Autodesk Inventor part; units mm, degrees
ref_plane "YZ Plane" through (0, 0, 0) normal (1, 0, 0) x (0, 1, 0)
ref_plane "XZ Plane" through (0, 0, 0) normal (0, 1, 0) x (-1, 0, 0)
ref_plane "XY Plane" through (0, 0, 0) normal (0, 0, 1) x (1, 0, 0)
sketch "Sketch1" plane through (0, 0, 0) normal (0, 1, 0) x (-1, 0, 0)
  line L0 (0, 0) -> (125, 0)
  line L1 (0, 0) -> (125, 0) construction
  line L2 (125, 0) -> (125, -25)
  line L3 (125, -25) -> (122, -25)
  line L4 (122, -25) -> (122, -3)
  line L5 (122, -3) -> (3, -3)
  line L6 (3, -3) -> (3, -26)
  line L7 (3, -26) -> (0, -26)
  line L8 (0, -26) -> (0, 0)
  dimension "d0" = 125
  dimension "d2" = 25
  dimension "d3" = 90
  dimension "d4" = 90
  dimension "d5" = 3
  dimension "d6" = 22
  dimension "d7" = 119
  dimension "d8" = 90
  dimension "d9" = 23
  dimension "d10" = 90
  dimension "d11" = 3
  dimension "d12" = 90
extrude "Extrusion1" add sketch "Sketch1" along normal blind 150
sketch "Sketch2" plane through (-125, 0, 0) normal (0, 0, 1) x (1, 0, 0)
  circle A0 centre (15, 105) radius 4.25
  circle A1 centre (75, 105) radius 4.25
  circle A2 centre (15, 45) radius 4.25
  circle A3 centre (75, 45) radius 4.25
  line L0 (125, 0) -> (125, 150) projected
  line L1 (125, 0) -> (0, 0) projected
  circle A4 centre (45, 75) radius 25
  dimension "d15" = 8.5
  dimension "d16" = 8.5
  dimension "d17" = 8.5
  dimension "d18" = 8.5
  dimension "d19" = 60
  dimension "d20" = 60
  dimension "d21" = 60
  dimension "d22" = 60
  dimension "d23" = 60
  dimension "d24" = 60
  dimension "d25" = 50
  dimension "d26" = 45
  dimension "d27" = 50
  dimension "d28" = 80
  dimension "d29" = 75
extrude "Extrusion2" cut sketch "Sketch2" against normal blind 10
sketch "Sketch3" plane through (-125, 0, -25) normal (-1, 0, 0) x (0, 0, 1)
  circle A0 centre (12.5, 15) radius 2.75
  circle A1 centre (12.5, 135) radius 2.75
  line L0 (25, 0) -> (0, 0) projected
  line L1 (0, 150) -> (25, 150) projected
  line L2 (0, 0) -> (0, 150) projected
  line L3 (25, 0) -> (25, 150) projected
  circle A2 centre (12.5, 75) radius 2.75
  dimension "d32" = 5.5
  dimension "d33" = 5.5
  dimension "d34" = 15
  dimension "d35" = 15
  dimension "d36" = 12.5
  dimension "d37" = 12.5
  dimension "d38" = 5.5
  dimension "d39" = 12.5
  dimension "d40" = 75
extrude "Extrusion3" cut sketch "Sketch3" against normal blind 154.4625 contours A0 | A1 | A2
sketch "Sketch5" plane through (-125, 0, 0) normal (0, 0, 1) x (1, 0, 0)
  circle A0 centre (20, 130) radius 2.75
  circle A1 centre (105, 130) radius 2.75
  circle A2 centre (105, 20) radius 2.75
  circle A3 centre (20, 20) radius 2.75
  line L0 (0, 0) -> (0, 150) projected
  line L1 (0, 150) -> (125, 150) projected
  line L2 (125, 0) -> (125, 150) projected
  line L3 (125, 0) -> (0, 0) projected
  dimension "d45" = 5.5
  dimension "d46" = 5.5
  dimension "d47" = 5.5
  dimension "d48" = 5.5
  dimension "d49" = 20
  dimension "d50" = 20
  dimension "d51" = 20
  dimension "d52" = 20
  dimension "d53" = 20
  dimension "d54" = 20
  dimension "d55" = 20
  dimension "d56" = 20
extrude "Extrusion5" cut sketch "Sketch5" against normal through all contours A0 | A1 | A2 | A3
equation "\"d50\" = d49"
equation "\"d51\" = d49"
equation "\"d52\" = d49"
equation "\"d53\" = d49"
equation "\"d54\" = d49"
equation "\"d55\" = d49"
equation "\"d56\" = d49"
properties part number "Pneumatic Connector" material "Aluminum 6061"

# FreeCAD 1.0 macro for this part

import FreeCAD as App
import Part
import Sketcher
Q = App.Units.Quantity


def add_polygon(sketch, points):
    """Adds a closed chain of lines whose ends are joined by coincident constraints."""
    first, n = sketch.GeometryCount, len(points)
    for a, b in zip(points, points[1:] + points[:1]):
        sketch.addGeometry(Part.LineSegment(App.Vector(*a, 0), App.Vector(*b, 0)), False)
    for i in range(n):
        sketch.addConstraint(Sketcher.Constraint("Coincident", first + i, 2, first + (i + 1) % n, 1))

doc = App.newDocument("Part")
params = doc.addObject("Spreadsheet::Sheet", "Params")
for row, (alias, value) in enumerate([
    ("sketch1_width", "125 mm"),
    ("sketch1_width2", "3 mm"),
    ("sketch1_height", "23 mm"),
    ("sketch1_height2", "22 mm"),
    ("sketch1_height3", "25 mm"),
    ("pad1_length", "150 mm"),
    ("sketch2_diameter", "50 mm"),
    ("sketch2_diameter2", "8.5 mm"),
    ("pocket1_length", "10 mm"),
    ("sketch3_diameter", "5.5 mm"),
    ("pocket2_length", "154.4625 mm"),
    ("sketch4_diameter", "5.5 mm"),
], start=1):
    params.set(f"A{row}", alias)
    params.set(f"B{row}", "=" + value)
    params.setAlias(f"B{row}", alias)

body = doc.addObject("PartDesign::Body", "Body")

# Sketch on XZ plane
sketch1 = doc.addObject("Sketcher::SketchObject", "Sketch")
body.addObject(sketch1)
sketch1.AttachmentSupport = (doc.XZ_Plane, [""])
sketch1.MapMode = "FlatFace"
add_polygon(sketch1, [(-125, 0), (0, 0), (0, -26), (-3, -26), (-3, -3), (-122, -3), (-122, -25), (-125, -25)])  # lines 0-7
sketch1.addConstraint(Sketcher.Constraint("Horizontal", 0))
sketch1.addConstraint(Sketcher.Constraint("Vertical", 1))
sketch1.addConstraint(Sketcher.Constraint("Horizontal", 2))
sketch1.addConstraint(Sketcher.Constraint("Vertical", 3))
sketch1.addConstraint(Sketcher.Constraint("Horizontal", 4))
sketch1.addConstraint(Sketcher.Constraint("Vertical", 5))
sketch1.addConstraint(Sketcher.Constraint("Horizontal", 6))
sketch1.addConstraint(Sketcher.Constraint("Vertical", 7))
sketch1.addConstraint(Sketcher.Constraint("Coincident", 0, 2, -1, 1))
sketch1.addConstraint(Sketcher.Constraint("Equal", 2, 6))
sketch1.addConstraint(Sketcher.Constraint("DistanceX", 0, 1, 0, 2, Q("125 mm")))
sketch1.addConstraint(Sketcher.Constraint("DistanceX", 2, 2, 2, 1, Q("3 mm")))
sketch1.addConstraint(Sketcher.Constraint("DistanceY", 3, 1, 3, 2, Q("23 mm")))
sketch1.addConstraint(Sketcher.Constraint("DistanceY", 5, 2, 5, 1, Q("22 mm")))
sketch1.addConstraint(Sketcher.Constraint("DistanceY", 7, 1, 7, 2, Q("25 mm")))
sketch1.setExpression("Constraints[18]", "Params.sketch1_width")
sketch1.setExpression("Constraints[19]", "Params.sketch1_width2")
sketch1.setExpression("Constraints[20]", "Params.sketch1_height")
sketch1.setExpression("Constraints[21]", "Params.sketch1_height2")
sketch1.setExpression("Constraints[22]", "Params.sketch1_height3")
pad1 = doc.addObject("PartDesign::Pad", "Pad")
body.addObject(pad1)
pad1.Profile = sketch1
pad1.setExpression("Length", "Params.pad1_length")
pad1.Reversed = True

# Sketch on XY plane
sketch2 = doc.addObject("Sketcher::SketchObject", "Sketch001")
body.addObject(sketch2)
sketch2.AttachmentSupport = (doc.XY_Plane, [""])
sketch2.MapMode = "FlatFace"
sketch2.addGeometry(Part.Circle(App.Vector(-110, 105, 0), App.Vector(0, 0, 1), 4.2), False)
sketch2.addGeometry(Part.Circle(App.Vector(-50, 105, 0), App.Vector(0, 0, 1), 4.2), False)
sketch2.addGeometry(Part.Circle(App.Vector(-110, 45, 0), App.Vector(0, 0, 1), 4.2), False)
sketch2.addGeometry(Part.Circle(App.Vector(-50, 45, 0), App.Vector(0, 0, 1), 4.2), False)
sketch2.addGeometry(Part.Circle(App.Vector(-80, 75, 0), App.Vector(0, 0, 1), 25), False)
sketch2.addConstraint(Sketcher.Constraint("Equal", 0, 1))
sketch2.addConstraint(Sketcher.Constraint("Equal", 1, 2))
sketch2.addConstraint(Sketcher.Constraint("Equal", 2, 3))
sketch2.addConstraint(Sketcher.Constraint("Horizontal", 0, 3, 1, 3))
sketch2.addConstraint(Sketcher.Constraint("Horizontal", 2, 3, 3, 3))
sketch2.addConstraint(Sketcher.Constraint("Vertical", 0, 3, 2, 3))
sketch2.addConstraint(Sketcher.Constraint("Vertical", 1, 3, 3, 3))
sketch2.addConstraint(Sketcher.Constraint("Diameter", 4, Q("50 mm")))
sketch2.addConstraint(Sketcher.Constraint("Diameter", 0, Q("8.5 mm")))
sketch2.addConstraint(Sketcher.Constraint("DistanceX", 1, 3, -1, 1, Q("50 mm")))
sketch2.addConstraint(Sketcher.Constraint("DistanceY", -1, 1, 2, 3, Q("45 mm")))
sketch2.addConstraint(Sketcher.Constraint("DistanceX", 4, 3, -1, 1, Q("80 mm")))
sketch2.addConstraint(Sketcher.Constraint("DistanceY", -1, 1, 4, 3, Q("75 mm")))
sketch2.addConstraint(Sketcher.Constraint("DistanceX", 0, 3, 1, 3, Q("60 mm")))
sketch2.addConstraint(Sketcher.Constraint("DistanceY", 2, 3, 0, 3, Q("60 mm")))
sketch2.setExpression("Constraints[7]", "Params.sketch2_diameter")
sketch2.setExpression("Constraints[8]", "Params.sketch2_diameter2")
pocket1 = doc.addObject("PartDesign::Pocket", "Pocket")
body.addObject(pocket1)
pocket1.Profile = sketch2
pocket1.setExpression("Length", "Params.pocket1_length")

# Sketch on YZ plane
sketch3 = doc.addObject("Sketcher::SketchObject", "Sketch002")
body.addObject(sketch3)
sketch3.AttachmentSupport = (doc.YZ_Plane, [""])
sketch3.MapMode = "FlatFace"
sketch3.AttachmentOffset = App.Placement(App.Vector(0, 0, -125), App.Rotation())
sketch3.addGeometry(Part.Circle(App.Vector(15, -12.5, 0), App.Vector(0, 0, 1), 2.8), False)
sketch3.addGeometry(Part.Circle(App.Vector(135, -12.5, 0), App.Vector(0, 0, 1), 2.8), False)
sketch3.addGeometry(Part.Circle(App.Vector(75, -12.5, 0), App.Vector(0, 0, 1), 2.8), False)
sketch3.addConstraint(Sketcher.Constraint("Equal", 0, 1))
sketch3.addConstraint(Sketcher.Constraint("Equal", 1, 2))
sketch3.addConstraint(Sketcher.Constraint("Horizontal", 0, 3, 1, 3))
sketch3.addConstraint(Sketcher.Constraint("Horizontal", 1, 3, 2, 3))
sketch3.addConstraint(Sketcher.Constraint("Diameter", 0, Q("5.5 mm")))
sketch3.addConstraint(Sketcher.Constraint("DistanceX", -1, 1, 0, 3, Q("15 mm")))
sketch3.addConstraint(Sketcher.Constraint("DistanceX", -1, 1, 2, 3, Q("75 mm")))
sketch3.addConstraint(Sketcher.Constraint("DistanceY", 0, 3, -1, 1, Q("12.5 mm")))
sketch3.addConstraint(Sketcher.Constraint("DistanceX", -1, 1, 1, 3, Q("135 mm")))
sketch3.setExpression("Constraints[4]", "Params.sketch3_diameter")
pocket2 = doc.addObject("PartDesign::Pocket", "Pocket001")
body.addObject(pocket2)
pocket2.Profile = sketch3
pocket2.setExpression("Length", "Params.pocket2_length")
pocket2.Reversed = True

# Sketch on XY plane
sketch4 = doc.addObject("Sketcher::SketchObject", "Sketch003")
body.addObject(sketch4)
sketch4.AttachmentSupport = (doc.XY_Plane, [""])
sketch4.MapMode = "FlatFace"
sketch4.addGeometry(Part.Circle(App.Vector(-105, 130, 0), App.Vector(0, 0, 1), 2.8), False)
sketch4.addGeometry(Part.Circle(App.Vector(-20, 130, 0), App.Vector(0, 0, 1), 2.8), False)
sketch4.addGeometry(Part.Circle(App.Vector(-20, 20, 0), App.Vector(0, 0, 1), 2.8), False)
sketch4.addGeometry(Part.Circle(App.Vector(-105, 20, 0), App.Vector(0, 0, 1), 2.8), False)
sketch4.addConstraint(Sketcher.Constraint("Equal", 0, 1))
sketch4.addConstraint(Sketcher.Constraint("Equal", 1, 2))
sketch4.addConstraint(Sketcher.Constraint("Equal", 2, 3))
sketch4.addConstraint(Sketcher.Constraint("Horizontal", 0, 3, 1, 3))
sketch4.addConstraint(Sketcher.Constraint("Horizontal", 2, 3, 3, 3))
sketch4.addConstraint(Sketcher.Constraint("Vertical", 1, 3, 2, 3))
sketch4.addConstraint(Sketcher.Constraint("Vertical", 0, 3, 3, 3))
sketch4.addConstraint(Sketcher.Constraint("Diameter", 0, Q("5.5 mm")))
sketch4.addConstraint(Sketcher.Constraint("DistanceX", 1, 3, -1, 1, Q("20 mm")))
sketch4.addConstraint(Sketcher.Constraint("DistanceY", -1, 1, 2, 3, Q("20 mm")))
sketch4.addConstraint(Sketcher.Constraint("DistanceX", 0, 3, -1, 1, Q("105 mm")))
sketch4.addConstraint(Sketcher.Constraint("DistanceY", -1, 1, 0, 3, Q("130 mm")))
sketch4.setExpression("Constraints[7]", "Params.sketch4_diameter")
pocket3 = doc.addObject("PartDesign::Pocket", "Pocket002")
body.addObject(pocket3)
pocket3.Profile = sketch4
pocket3.Type = "ThroughAll"

doc.recompute()
